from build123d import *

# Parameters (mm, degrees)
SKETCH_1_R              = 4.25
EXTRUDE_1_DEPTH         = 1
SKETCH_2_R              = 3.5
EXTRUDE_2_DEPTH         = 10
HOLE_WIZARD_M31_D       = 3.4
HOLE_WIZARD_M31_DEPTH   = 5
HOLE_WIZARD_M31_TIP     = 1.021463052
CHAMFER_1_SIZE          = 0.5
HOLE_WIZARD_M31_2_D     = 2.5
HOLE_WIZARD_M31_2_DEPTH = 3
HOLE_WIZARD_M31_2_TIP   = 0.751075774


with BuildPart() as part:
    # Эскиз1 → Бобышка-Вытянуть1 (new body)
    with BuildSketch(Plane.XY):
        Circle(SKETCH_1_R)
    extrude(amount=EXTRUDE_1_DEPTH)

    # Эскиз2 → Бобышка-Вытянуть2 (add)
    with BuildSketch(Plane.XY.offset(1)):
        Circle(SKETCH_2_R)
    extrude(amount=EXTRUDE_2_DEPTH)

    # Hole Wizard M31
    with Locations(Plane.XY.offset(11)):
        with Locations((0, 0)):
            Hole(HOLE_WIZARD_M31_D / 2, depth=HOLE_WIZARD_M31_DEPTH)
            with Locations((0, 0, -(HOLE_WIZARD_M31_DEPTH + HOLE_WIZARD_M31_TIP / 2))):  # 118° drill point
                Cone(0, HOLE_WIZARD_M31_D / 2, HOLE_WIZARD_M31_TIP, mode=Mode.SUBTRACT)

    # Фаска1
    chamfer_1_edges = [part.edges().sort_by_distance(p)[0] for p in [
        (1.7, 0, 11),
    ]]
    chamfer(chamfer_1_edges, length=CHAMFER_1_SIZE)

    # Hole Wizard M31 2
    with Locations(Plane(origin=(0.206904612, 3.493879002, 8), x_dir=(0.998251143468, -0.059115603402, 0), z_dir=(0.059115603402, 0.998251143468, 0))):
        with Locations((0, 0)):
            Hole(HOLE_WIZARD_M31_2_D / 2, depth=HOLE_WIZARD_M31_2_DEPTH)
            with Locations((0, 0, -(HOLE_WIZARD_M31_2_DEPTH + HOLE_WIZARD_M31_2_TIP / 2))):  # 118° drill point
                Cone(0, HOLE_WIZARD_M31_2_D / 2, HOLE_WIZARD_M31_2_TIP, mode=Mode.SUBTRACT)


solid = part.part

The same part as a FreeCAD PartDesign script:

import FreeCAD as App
import Part
import Sketcher
from FreeCAD import Vector


def edges_at(feature, points):
    """Names of the edges that pass closest to the given points."""
    edges = feature.Shape.Edges
    near = lambda p: min(range(len(edges)), key=lambda i: edges[i].distToShape(Part.Vertex(*p))[0])
    return sorted({f"Edge{near(p) + 1}" for p in points})

doc = App.newDocument("Part")
body = doc.addObject("PartDesign::Body", "Body")

sketch1 = body.newObject("Sketcher::SketchObject", "Sketch")
sketch1.AttachmentSupport = (doc.getObject("XY_Plane"), [""])
sketch1.MapMode = "FlatFace"
sketch1.addGeometry(Part.Circle(Vector(0, 0, 0), Vector(0, 0, 1), 4.2), False)
sketch1.addConstraint(Sketcher.Constraint("Coincident", 0, 3, -1, 1))
sketch1.addConstraint(Sketcher.Constraint("Diameter", 0, 8.5))
pad1 = body.newObject("PartDesign::Pad", "Pad")
pad1.Profile = sketch1
pad1.Length = 1

sketch2 = body.newObject("Sketcher::SketchObject", "Sketch001")
sketch2.AttachmentSupport = (doc.getObject("XY_Plane"), [""])
sketch2.MapMode = "FlatFace"
sketch2.AttachmentOffset = App.Placement(Vector(0, 0, 1), App.Rotation())
sketch2.addGeometry(Part.Circle(Vector(0, 0, 0), Vector(0, 0, 1), 3.5), False)
sketch2.addConstraint(Sketcher.Constraint("Coincident", 0, 3, -1, 1))
sketch2.addConstraint(Sketcher.Constraint("Diameter", 0, 7.0))
pad2 = body.newObject("PartDesign::Pad", "Pad001")
pad2.Profile = sketch2
pad2.Length = 10

sketch3 = body.newObject("Sketcher::SketchObject", "Sketch002")
sketch3.AttachmentSupport = (doc.getObject("XY_Plane"), [""])
sketch3.MapMode = "FlatFace"
sketch3.AttachmentOffset = App.Placement(Vector(0, 0, 11), App.Rotation())
sketch3.addGeometry(Part.Circle(Vector(0, 0, 0), Vector(0, 0, 1), 1.7), False)
sketch3.addConstraint(Sketcher.Constraint("Coincident", 0, 3, -1, 1))
sketch3.addConstraint(Sketcher.Constraint("Diameter", 0, 3.4))
doc.recompute()
hole = body.newObject("PartDesign::Hole", "Hole")
hole.Profile = sketch3
hole.ThreadType = "None"
hole.Diameter = 3.4
hole.DepthType = "Dimension"
hole.Depth = 5
hole.DrillPoint = "Angled"
hole.DrillPointAngle = 118
doc.recompute()

chamfer = body.newObject("PartDesign::Chamfer", "Chamfer")
chamfer.Base = (hole, edges_at(hole, [(1.7, 0, 11)]))
chamfer.Size = 0.5

sketch4 = body.newObject("Sketcher::SketchObject", "Sketch003")
sketch4.Placement = App.Placement(Vector(0.206905, 3.493879, 0), App.Rotation(Vector(0.998251143, -0.059115603, 0), Vector(0, 0, -0.999999999), Vector(0.059115603, 0.998251143, 0), "ZXY"))
sketch4.addGeometry(Part.Circle(Vector(0, -8, 0), Vector(0, 0, 1), 1.2), False)
sketch4.addConstraint(Sketcher.Constraint("PointOnObject", 0, 3, -2))
sketch4.addConstraint(Sketcher.Constraint("Diameter", 0, 2.5))
sketch4.addConstraint(Sketcher.Constraint("DistanceY", 0, 3, -1, 1, 8.0))
doc.recompute()
hole2 = body.newObject("PartDesign::Hole", "Hole001")
hole2.Profile = sketch4
hole2.ThreadType = "None"
hole2.Diameter = 2.5
hole2.DepthType = "Dimension"
hole2.Depth = 3
hole2.DrillPoint = "Angled"
hole2.DrillPointAngle = 118

doc.recompute()
